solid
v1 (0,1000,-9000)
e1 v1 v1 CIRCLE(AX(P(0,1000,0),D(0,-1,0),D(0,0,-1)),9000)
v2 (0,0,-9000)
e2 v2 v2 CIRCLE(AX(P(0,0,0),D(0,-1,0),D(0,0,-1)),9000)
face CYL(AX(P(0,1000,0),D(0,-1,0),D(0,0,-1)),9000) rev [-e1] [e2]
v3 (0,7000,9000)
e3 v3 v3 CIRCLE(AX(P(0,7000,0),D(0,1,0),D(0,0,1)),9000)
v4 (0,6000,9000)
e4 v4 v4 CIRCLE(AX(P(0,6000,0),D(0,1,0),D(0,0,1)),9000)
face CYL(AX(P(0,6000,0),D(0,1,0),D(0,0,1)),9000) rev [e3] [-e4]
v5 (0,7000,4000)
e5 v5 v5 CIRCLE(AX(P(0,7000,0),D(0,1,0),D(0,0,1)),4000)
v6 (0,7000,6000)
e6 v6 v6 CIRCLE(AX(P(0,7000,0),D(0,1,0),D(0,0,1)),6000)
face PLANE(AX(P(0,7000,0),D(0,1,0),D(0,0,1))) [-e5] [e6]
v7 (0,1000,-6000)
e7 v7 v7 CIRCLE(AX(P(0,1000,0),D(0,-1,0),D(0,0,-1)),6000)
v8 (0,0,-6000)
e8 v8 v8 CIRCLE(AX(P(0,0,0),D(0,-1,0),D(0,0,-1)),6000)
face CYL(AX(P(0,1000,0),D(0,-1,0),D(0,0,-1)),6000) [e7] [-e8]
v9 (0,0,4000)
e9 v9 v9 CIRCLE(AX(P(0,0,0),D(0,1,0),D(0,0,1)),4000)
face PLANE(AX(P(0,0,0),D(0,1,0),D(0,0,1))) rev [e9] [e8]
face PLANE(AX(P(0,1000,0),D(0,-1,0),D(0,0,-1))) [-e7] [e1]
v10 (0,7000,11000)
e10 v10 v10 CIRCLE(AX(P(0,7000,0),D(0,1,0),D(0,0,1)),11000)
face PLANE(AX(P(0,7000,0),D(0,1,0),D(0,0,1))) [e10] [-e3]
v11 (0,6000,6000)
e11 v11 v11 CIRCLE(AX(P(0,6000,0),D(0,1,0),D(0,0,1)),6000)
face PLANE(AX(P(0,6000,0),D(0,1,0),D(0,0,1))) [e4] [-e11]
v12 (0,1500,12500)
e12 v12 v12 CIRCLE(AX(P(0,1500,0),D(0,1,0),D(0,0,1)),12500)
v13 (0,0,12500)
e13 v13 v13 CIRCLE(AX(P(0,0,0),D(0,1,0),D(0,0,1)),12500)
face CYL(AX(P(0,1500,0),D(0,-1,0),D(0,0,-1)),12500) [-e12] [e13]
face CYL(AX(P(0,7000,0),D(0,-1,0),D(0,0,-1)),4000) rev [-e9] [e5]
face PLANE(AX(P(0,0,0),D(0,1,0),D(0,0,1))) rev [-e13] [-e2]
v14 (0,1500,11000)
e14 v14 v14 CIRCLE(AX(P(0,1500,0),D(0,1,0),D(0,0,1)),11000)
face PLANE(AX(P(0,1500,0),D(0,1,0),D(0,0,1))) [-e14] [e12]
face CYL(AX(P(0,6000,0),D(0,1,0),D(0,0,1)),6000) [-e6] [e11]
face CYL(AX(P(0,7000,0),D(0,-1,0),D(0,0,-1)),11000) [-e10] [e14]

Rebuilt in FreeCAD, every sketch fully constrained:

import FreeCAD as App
import Part
import Sketcher
from FreeCAD import Vector
Q = App.Units.Quantity

doc = App.newDocument("Part")
params = doc.addObject("Spreadsheet::Sheet", "Params")
for row, (alias, value) in enumerate([
    ("sketch1_diameter", "22000 mm"),
    ("sketch1_diameter2", "8000 mm"),
    ("pad1_length", "7000 mm"),
    ("sketch2_diameter", "25000 mm"),
    ("sketch2_diameter2", "22000 mm"),
    ("pad2_length", "1500 mm"),
    ("sketch3_diameter", "18000 mm"),
    ("sketch3_diameter2", "12000 mm"),
    ("pocket1_length", "1000 mm"),
    ("sketch4_diameter", "18000 mm"),
    ("sketch4_diameter2", "12000 mm"),
    ("pocket2_length", "1000 mm"),
], start=1):
    params.set(f"A{row}", alias)
    params.set(f"B{row}", "=" + value)
    params.setAlias(f"B{row}", alias)

body = doc.addObject("PartDesign::Body", "Body")

sketch1 = body.newObject("Sketcher::SketchObject", "Sketch")
sketch1.AttachmentSupport = (doc.getObject("XZ_Plane"), [""])
sketch1.MapMode = "FlatFace"
sketch1.addGeometry([
    Part.Circle(Vector(0, 0, 0), Vector(0, 0, 1), 11000),
    Part.Circle(Vector(0, 0, 0), Vector(0, 0, 1), 4000),
], False)
sketch1.addConstraint([
    Sketcher.Constraint("Coincident", 0, 3, -1, 1),
    Sketcher.Constraint("Coincident", 1, 3, -1, 1),
    Sketcher.Constraint("Diameter", 0, Q("22000 mm")),
    Sketcher.Constraint("Diameter", 1, Q("8000 mm")),
])
sketch1.setExpression("Constraints[2]", "Params.sketch1_diameter")
sketch1.setExpression("Constraints[3]", "Params.sketch1_diameter2")
pad1 = body.newObject("PartDesign::Pad", "Pad")
pad1.Profile = sketch1
pad1.setExpression("Length", "Params.pad1_length")
pad1.Reversed = True

sketch2 = body.newObject("Sketcher::SketchObject", "Sketch001")
sketch2.AttachmentSupport = (doc.getObject("XZ_Plane"), [""])
sketch2.MapMode = "FlatFace"
sketch2.addGeometry([
    Part.Circle(Vector(0, 0, 0), Vector(0, 0, 1), 12500),
    Part.Circle(Vector(0, 0, 0), Vector(0, 0, 1), 11000),
], False)
sketch2.addConstraint([
    Sketcher.Constraint("Coincident", 0, 3, -1, 1),
    Sketcher.Constraint("Coincident", 1, 3, -1, 1),
    Sketcher.Constraint("Diameter", 0, Q("25000 mm")),
    Sketcher.Constraint("Diameter", 1, Q("22000 mm")),
])
sketch2.setExpression("Constraints[2]", "Params.sketch2_diameter")
sketch2.setExpression("Constraints[3]", "Params.sketch2_diameter2")
pad2 = body.newObject("PartDesign::Pad", "Pad001")
pad2.Profile = sketch2
pad2.setExpression("Length", "Params.pad2_length")
pad2.Reversed = True

sketch3 = body.newObject("Sketcher::SketchObject", "Sketch002")
sketch3.AttachmentSupport = (doc.getObject("XZ_Plane"), [""])
sketch3.MapMode = "FlatFace"
sketch3.AttachmentOffset = App.Placement(Vector(0, 0, -7000), App.Rotation())
sketch3.addGeometry([
    Part.Circle(Vector(0, 0, 0), Vector(0, 0, 1), 9000),
    Part.Circle(Vector(0, 0, 0), Vector(0, 0, 1), 6000),
], False)
sketch3.addConstraint([
    Sketcher.Constraint("Coincident", 0, 3, -1, 1),
    Sketcher.Constraint("Coincident", 1, 3, -1, 1),
    Sketcher.Constraint("Diameter", 0, Q("18000 mm")),
    Sketcher.Constraint("Diameter", 1, Q("12000 mm")),
])
sketch3.setExpression("Constraints[2]", "Params.sketch3_diameter")
sketch3.setExpression("Constraints[3]", "Params.sketch3_diameter2")
pocket1 = body.newObject("PartDesign::Pocket", "Pocket")
pocket1.Profile = sketch3
pocket1.setExpression("Length", "Params.pocket1_length")
pocket1.Reversed = True

sketch4 = body.newObject("Sketcher::SketchObject", "Sketch003")
sketch4.AttachmentSupport = (doc.getObject("XZ_Plane"), [""])
sketch4.MapMode = "FlatFace"
sketch4.AttachmentOffset = App.Placement(Vector(0, 0, -1000), App.Rotation())
sketch4.addGeometry([
    Part.Circle(Vector(0, 0, 0), Vector(0, 0, 1), 9000),
    Part.Circle(Vector(0, 0, 0), Vector(0, 0, 1), 6000),
], False)
sketch4.addConstraint([
    Sketcher.Constraint("Coincident", 0, 3, -1, 1),
    Sketcher.Constraint("Coincident", 1, 3, -1, 1),
    Sketcher.Constraint("Diameter", 0, Q("18000 mm")),
    Sketcher.Constraint("Diameter", 1, Q("12000 mm")),
])
sketch4.setExpression("Constraints[2]", "Params.sketch4_diameter")
sketch4.setExpression("Constraints[3]", "Params.sketch4_diameter2")
pocket2 = body.newObject("PartDesign::Pocket", "Pocket001")
pocket2.Profile = sketch4
pocket2.setExpression("Length", "Params.pocket2_length")
pocket2.Reversed = True

doc.recompute()
